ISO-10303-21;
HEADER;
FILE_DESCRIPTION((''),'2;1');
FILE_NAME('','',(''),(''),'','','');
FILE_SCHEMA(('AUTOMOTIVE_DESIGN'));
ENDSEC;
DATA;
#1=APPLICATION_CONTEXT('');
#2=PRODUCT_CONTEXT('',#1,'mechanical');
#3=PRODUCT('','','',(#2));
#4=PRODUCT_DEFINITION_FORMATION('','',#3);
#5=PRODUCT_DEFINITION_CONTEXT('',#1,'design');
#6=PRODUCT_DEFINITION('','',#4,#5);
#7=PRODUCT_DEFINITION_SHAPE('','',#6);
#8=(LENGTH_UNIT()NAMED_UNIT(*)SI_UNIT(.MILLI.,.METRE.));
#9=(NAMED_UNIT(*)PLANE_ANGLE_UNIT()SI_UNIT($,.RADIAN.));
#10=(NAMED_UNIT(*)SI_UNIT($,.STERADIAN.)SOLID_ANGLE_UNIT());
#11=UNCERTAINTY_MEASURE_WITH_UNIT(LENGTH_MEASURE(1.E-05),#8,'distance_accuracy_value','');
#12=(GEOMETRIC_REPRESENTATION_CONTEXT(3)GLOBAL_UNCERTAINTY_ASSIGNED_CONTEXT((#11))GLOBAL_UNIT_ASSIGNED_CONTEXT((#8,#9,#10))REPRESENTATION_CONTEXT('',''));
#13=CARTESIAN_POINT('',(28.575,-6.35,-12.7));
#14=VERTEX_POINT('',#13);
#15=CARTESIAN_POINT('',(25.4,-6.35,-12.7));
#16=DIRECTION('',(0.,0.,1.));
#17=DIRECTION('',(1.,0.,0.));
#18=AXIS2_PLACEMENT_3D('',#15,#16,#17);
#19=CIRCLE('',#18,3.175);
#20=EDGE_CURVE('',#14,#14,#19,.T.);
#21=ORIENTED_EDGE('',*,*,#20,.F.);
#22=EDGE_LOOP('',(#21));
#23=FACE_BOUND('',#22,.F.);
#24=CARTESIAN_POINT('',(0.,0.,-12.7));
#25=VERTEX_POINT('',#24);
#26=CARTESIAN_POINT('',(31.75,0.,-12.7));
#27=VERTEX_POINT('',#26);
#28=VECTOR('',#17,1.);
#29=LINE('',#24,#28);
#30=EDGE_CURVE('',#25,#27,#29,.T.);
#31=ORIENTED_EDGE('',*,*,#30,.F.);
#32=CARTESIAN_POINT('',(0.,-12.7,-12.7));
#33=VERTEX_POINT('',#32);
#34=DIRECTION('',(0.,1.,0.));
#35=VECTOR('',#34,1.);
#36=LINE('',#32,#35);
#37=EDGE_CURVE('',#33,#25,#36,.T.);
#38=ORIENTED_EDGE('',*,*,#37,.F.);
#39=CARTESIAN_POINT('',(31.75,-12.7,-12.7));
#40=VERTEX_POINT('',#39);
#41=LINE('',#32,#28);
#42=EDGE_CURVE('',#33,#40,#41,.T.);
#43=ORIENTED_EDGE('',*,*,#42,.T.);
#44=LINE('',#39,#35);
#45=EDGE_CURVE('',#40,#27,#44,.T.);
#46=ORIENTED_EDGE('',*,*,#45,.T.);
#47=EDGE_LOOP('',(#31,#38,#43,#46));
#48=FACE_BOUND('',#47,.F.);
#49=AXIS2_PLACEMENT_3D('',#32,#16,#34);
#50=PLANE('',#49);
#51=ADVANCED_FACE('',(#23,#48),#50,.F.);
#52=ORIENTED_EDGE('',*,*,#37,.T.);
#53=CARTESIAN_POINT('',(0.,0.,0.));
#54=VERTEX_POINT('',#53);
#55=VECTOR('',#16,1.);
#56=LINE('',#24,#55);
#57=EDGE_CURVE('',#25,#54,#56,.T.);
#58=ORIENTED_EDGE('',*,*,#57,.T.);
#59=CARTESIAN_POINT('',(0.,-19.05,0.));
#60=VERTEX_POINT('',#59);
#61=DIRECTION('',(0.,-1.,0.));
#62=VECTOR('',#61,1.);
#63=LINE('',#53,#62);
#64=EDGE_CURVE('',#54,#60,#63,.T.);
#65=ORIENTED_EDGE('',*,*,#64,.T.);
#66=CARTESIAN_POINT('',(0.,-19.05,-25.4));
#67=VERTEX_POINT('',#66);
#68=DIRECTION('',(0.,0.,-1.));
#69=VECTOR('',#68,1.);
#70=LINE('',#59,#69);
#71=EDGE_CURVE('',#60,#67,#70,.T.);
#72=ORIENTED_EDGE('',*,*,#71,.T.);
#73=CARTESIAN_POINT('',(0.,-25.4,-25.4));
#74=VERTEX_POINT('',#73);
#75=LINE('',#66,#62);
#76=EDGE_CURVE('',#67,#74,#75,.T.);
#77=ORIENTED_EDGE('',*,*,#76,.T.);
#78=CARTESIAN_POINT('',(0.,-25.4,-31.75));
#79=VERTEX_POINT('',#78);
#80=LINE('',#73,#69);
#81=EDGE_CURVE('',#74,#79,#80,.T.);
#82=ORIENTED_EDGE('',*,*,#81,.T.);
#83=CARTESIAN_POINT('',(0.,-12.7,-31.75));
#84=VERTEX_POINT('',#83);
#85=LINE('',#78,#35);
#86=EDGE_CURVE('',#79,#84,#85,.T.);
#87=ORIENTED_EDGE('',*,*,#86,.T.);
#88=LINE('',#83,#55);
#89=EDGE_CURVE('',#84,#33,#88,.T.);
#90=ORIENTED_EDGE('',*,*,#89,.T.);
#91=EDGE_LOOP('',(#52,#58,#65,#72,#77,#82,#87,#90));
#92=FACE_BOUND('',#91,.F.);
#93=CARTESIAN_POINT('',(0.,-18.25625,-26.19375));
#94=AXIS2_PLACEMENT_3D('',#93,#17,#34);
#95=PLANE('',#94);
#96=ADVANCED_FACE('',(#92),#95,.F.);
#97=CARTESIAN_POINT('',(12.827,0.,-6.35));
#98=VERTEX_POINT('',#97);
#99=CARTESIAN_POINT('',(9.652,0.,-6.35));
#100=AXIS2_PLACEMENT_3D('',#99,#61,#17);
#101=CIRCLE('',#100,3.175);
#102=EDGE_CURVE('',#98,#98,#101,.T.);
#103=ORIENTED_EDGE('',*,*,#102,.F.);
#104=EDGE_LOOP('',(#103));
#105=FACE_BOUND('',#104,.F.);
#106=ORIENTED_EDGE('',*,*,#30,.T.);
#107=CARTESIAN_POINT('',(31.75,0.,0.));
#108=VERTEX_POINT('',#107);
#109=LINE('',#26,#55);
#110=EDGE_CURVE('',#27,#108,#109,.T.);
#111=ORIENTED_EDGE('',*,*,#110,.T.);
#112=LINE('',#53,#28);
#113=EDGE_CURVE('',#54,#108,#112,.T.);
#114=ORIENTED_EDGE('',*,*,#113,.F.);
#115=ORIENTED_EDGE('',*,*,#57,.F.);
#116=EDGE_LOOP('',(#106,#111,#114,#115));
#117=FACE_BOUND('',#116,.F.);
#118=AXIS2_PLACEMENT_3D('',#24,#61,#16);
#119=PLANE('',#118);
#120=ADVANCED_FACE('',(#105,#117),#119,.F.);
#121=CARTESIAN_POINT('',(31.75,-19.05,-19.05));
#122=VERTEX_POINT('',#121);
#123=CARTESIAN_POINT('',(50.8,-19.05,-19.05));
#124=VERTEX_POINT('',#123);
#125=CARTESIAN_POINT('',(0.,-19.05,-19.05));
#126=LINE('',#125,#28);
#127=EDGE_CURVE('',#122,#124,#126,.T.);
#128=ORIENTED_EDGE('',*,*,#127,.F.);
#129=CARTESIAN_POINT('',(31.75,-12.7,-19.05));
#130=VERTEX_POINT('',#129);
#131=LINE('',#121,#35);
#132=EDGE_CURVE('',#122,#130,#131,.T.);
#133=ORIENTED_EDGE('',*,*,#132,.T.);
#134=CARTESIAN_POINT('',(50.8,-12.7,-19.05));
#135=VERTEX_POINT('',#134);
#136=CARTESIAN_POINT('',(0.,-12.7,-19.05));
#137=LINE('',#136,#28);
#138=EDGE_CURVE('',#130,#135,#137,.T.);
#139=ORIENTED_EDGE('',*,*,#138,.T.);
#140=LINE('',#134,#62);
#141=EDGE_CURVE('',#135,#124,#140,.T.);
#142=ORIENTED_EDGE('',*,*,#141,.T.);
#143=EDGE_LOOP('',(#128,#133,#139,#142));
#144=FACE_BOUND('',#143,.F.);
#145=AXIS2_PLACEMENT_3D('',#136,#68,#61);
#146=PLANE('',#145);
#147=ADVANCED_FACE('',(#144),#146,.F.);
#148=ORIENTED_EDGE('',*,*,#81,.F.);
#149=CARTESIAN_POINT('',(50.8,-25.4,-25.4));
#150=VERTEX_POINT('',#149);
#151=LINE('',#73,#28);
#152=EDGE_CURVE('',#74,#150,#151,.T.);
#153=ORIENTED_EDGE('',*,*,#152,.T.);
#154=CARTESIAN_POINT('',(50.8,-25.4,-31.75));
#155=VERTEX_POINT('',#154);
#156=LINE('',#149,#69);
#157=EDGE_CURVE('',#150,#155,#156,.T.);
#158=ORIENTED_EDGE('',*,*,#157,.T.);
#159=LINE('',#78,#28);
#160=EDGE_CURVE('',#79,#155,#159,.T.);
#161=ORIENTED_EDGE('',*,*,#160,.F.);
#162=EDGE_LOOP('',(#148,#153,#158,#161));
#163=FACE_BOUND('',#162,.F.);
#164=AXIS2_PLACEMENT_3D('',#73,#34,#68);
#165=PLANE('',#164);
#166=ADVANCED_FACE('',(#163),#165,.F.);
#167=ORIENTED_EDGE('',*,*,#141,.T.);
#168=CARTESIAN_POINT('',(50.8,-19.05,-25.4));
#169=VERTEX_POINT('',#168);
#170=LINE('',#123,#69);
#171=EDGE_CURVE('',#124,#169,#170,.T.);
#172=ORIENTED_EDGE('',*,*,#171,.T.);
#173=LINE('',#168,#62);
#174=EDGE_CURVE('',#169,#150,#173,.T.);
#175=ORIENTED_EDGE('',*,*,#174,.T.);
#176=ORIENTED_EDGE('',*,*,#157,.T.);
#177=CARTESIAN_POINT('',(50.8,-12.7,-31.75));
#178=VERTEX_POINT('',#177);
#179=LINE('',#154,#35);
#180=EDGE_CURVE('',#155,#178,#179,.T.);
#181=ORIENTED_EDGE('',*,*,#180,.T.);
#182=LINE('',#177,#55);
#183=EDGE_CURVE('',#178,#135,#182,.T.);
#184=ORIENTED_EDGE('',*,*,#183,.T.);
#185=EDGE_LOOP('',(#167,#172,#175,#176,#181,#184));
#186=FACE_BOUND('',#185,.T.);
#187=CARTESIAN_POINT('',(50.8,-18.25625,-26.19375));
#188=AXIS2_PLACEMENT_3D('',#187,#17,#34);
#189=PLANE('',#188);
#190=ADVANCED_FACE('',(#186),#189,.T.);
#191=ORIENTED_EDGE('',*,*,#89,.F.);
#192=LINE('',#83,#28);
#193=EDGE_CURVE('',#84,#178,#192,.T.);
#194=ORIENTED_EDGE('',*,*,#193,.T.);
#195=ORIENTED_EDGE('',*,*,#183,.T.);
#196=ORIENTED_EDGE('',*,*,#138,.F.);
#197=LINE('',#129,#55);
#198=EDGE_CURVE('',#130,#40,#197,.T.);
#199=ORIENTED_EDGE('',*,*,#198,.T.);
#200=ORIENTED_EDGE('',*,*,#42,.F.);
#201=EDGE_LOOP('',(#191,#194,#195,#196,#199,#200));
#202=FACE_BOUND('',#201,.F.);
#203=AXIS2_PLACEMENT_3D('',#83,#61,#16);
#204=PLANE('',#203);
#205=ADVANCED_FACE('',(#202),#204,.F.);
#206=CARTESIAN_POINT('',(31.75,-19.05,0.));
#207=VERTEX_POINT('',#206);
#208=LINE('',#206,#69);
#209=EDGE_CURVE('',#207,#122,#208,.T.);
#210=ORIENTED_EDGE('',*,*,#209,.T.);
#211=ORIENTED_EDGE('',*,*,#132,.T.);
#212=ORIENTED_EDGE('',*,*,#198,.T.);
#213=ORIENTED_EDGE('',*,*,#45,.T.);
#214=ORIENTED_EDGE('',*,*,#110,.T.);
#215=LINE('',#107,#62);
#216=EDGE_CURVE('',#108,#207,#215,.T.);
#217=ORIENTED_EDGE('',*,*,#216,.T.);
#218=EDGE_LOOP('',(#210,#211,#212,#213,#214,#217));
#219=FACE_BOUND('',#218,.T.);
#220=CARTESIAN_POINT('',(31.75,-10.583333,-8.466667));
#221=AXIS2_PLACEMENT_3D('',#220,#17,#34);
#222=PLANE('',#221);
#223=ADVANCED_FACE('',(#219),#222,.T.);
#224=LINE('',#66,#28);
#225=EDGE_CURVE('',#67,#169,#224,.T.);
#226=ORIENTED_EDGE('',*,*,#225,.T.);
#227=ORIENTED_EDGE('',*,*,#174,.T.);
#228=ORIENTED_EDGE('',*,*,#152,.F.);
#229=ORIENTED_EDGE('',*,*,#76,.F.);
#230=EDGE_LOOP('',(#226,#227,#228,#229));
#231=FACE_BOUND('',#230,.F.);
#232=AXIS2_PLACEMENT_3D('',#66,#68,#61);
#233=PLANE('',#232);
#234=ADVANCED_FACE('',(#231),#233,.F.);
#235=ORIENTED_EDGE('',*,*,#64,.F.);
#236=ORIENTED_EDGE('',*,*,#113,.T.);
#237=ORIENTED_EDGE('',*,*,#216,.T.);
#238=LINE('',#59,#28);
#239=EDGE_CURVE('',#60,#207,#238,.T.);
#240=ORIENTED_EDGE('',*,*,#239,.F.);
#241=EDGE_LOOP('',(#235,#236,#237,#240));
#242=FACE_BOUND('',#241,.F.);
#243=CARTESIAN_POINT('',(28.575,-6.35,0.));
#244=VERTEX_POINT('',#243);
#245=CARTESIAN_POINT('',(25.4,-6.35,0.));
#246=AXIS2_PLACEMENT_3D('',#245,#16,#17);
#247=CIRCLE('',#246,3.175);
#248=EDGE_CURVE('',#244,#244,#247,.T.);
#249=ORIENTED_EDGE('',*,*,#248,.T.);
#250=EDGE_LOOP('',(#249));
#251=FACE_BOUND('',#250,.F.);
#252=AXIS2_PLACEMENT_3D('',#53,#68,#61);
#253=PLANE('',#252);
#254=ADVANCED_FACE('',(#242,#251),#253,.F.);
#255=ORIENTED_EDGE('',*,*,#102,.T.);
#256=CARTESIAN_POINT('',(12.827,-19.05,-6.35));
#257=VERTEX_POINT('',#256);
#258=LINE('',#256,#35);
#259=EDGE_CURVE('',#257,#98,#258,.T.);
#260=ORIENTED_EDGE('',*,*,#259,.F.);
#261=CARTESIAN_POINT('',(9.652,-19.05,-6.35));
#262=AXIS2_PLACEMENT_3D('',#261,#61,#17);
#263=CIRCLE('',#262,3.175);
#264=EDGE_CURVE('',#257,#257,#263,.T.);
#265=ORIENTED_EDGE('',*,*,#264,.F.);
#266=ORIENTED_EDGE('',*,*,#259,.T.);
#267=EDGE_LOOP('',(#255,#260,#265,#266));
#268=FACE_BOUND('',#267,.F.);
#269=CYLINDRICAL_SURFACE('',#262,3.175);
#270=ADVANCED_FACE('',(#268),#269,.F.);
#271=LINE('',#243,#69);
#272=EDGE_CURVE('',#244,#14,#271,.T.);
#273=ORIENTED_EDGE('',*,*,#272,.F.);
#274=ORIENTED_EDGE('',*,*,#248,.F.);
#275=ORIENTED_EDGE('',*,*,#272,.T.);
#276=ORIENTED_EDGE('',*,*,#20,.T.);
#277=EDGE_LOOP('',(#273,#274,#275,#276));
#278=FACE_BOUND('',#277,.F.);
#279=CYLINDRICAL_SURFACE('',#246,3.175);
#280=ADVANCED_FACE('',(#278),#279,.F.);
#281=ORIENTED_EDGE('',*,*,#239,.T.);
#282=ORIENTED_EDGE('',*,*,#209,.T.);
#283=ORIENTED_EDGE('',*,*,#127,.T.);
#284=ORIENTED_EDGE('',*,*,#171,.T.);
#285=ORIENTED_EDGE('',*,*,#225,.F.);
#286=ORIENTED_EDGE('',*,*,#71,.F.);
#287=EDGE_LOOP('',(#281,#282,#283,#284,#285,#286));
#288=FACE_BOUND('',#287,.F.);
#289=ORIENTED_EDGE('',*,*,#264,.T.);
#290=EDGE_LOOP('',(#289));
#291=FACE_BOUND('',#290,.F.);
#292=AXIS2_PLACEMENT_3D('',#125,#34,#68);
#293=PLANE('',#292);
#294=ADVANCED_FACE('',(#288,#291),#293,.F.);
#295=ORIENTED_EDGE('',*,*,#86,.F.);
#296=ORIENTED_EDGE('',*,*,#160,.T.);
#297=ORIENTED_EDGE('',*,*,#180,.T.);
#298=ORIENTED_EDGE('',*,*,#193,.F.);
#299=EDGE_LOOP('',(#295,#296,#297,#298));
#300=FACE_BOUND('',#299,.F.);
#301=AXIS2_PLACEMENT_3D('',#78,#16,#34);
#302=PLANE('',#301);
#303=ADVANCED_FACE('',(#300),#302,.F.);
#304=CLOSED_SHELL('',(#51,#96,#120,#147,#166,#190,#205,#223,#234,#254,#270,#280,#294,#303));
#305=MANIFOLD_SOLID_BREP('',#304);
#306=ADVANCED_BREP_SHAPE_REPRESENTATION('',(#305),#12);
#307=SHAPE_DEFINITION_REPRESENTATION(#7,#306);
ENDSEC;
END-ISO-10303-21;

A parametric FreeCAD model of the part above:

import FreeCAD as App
import Part
import Sketcher

V = App.Vector
Q = App.Units.Quantity

doc = App.newDocument("Part")
body = doc.addObject("PartDesign::Body", "Body")

sketch1 = body.newObject("Sketcher::SketchObject", "Sketch")
sketch1.AttachmentSupport = (doc.getObject("YZ_Plane"), [""])
sketch1.MapMode = "FlatFace"
sketch1.addGeometry([
    Part.LineSegment(V(0, -12.7, 0), V(0, 0, 0)),
    Part.LineSegment(V(0, 0, 0), V(-19.05, 0, 0)),
    Part.LineSegment(V(-19.05, 0, 0), V(-19.05, -19.05, 0)),
    Part.LineSegment(V(-19.05, -19.05, 0), V(-12.7, -19.05, 0)),
    Part.LineSegment(V(-12.7, -19.05, 0), V(-12.7, -12.7, 0)),
    Part.LineSegment(V(-12.7, -12.7, 0), V(0, -12.7, 0)),
], False)
sketch1.addConstraint([
    Sketcher.Constraint("Coincident", 0, 2, 1, 1),
    Sketcher.Constraint("Coincident", 1, 2, 2, 1),
    Sketcher.Constraint("Coincident", 2, 2, 3, 1),
    Sketcher.Constraint("Coincident", 3, 2, 4, 1),
    Sketcher.Constraint("Coincident", 4, 2, 5, 1),
    Sketcher.Constraint("Coincident", 5, 2, 0, 1),
    Sketcher.Constraint("Vertical", 0),
    Sketcher.Constraint("Horizontal", 1),
    Sketcher.Constraint("Vertical", 2),
    Sketcher.Constraint("Horizontal", 3),
    Sketcher.Constraint("Vertical", 4),
    Sketcher.Constraint("Horizontal", 5),
    Sketcher.Constraint("Coincident", 0, 2, -1, 1),
    Sketcher.Constraint("Equal", 5, 0),
    Sketcher.Constraint("Equal", 1, 2),
    Sketcher.Constraint("DistanceX", 5, 1, 5, 2, Q("0.5 in")),
    Sketcher.Constraint("DistanceX", 1, 2, 1, 1, Q("0.75 in")),
])
pad1 = body.newObject("PartDesign::Pad", "Pad")
pad1.Profile = sketch1
pad1.Length = Q("1.25 in")

sketch2 = body.newObject("Sketcher::SketchObject", "Sketch001")
sketch2.AttachmentSupport = (doc.getObject("YZ_Plane"), [""])
sketch2.MapMode = "FlatFace"
sketch2.addGeometry([
    Part.LineSegment(V(-12.7, -19.05, 0), V(-19.05, -19.05, 0)),
    Part.LineSegment(V(-19.05, -19.05, 0), V(-19.05, -25.4, 0)),
    Part.LineSegment(V(-19.05, -25.4, 0), V(-25.4, -25.4, 0)),
    Part.LineSegment(V(-25.4, -25.4, 0), V(-25.4, -31.75, 0)),
    Part.LineSegment(V(-25.4, -31.75, 0), V(-12.7, -31.75, 0)),
    Part.LineSegment(V(-12.7, -31.75, 0), V(-12.7, -19.05, 0)),
], False)
sketch2.addConstraint([
    Sketcher.Constraint("Coincident", 0, 2, 1, 1),
    Sketcher.Constraint("Coincident", 1, 2, 2, 1),
    Sketcher.Constraint("Coincident", 2, 2, 3, 1),
    Sketcher.Constraint("Coincident", 3, 2, 4, 1),
    Sketcher.Constraint("Coincident", 4, 2, 5, 1),
    Sketcher.Constraint("Coincident", 5, 2, 0, 1),
    Sketcher.Constraint("Horizontal", 0),
    Sketcher.Constraint("Vertical", 1),
    Sketcher.Constraint("Horizontal", 2),
    Sketcher.Constraint("Vertical", 3),
    Sketcher.Constraint("Horizontal", 4),
    Sketcher.Constraint("Vertical", 5),
    Sketcher.Constraint("Equal", 0, 2),
    Sketcher.Constraint("Equal", 2, 1),
    Sketcher.Constraint("Equal", 1, 3),
    Sketcher.Constraint("DistanceX", 4, 1, 4, 2, Q("0.5 in")),
    Sketcher.Constraint("DistanceY", 1, 2, -1, 1, Q("1 in")),
    Sketcher.Constraint("DistanceX", 2, 2, -1, 1, Q("1 in")),
])
pad2 = body.newObject("PartDesign::Pad", "Pad001")
pad2.Profile = sketch2
pad2.Length = Q("2 in")

sketch3 = body.newObject("Sketcher::SketchObject", "Sketch002")
sketch3.AttachmentSupport = (doc.getObject("XZ_Plane"), [""])
sketch3.MapMode = "FlatFace"
sketch3.AttachmentOffset = App.Placement(V(0, 0, 0.75 * 25.4), App.Rotation())
sketch3.addGeometry(Part.Circle(V(9.652, -6.35, 0), V(0, 0, 1), 3.175), False)
sketch3.addConstraint([
    Sketcher.Constraint("Diameter", 0, Q("0.25 in")),
    Sketcher.Constraint("DistanceX", -1, 1, 0, 3, Q("0.38 in")),
    Sketcher.Constraint("DistanceY", 0, 3, -1, 1, Q("0.25 in")),
])
pocket1 = body.newObject("PartDesign::Pocket", "Pocket")
pocket1.Profile = sketch3
pocket1.Type = "ThroughAll"

sketch4 = body.newObject("Sketcher::SketchObject", "Sketch003")
sketch4.AttachmentSupport = (doc.getObject("XY_Plane"), [""])
sketch4.MapMode = "FlatFace"
sketch4.addGeometry(Part.Circle(V(25.4, -6.35, 0), V(0, 0, 1), 3.175), False)
sketch4.addConstraint([
    Sketcher.Constraint("Diameter", 0, Q("0.25 in")),
    Sketcher.Constraint("DistanceX", -1, 1, 0, 3, Q("1 in")),
    Sketcher.Constraint("DistanceY", 0, 3, -1, 1, Q("0.25 in")),
])
pocket2 = body.newObject("PartDesign::Pocket", "Pocket001")
pocket2.Profile = sketch4
pocket2.Type = "ThroughAll"

doc.recompute()
